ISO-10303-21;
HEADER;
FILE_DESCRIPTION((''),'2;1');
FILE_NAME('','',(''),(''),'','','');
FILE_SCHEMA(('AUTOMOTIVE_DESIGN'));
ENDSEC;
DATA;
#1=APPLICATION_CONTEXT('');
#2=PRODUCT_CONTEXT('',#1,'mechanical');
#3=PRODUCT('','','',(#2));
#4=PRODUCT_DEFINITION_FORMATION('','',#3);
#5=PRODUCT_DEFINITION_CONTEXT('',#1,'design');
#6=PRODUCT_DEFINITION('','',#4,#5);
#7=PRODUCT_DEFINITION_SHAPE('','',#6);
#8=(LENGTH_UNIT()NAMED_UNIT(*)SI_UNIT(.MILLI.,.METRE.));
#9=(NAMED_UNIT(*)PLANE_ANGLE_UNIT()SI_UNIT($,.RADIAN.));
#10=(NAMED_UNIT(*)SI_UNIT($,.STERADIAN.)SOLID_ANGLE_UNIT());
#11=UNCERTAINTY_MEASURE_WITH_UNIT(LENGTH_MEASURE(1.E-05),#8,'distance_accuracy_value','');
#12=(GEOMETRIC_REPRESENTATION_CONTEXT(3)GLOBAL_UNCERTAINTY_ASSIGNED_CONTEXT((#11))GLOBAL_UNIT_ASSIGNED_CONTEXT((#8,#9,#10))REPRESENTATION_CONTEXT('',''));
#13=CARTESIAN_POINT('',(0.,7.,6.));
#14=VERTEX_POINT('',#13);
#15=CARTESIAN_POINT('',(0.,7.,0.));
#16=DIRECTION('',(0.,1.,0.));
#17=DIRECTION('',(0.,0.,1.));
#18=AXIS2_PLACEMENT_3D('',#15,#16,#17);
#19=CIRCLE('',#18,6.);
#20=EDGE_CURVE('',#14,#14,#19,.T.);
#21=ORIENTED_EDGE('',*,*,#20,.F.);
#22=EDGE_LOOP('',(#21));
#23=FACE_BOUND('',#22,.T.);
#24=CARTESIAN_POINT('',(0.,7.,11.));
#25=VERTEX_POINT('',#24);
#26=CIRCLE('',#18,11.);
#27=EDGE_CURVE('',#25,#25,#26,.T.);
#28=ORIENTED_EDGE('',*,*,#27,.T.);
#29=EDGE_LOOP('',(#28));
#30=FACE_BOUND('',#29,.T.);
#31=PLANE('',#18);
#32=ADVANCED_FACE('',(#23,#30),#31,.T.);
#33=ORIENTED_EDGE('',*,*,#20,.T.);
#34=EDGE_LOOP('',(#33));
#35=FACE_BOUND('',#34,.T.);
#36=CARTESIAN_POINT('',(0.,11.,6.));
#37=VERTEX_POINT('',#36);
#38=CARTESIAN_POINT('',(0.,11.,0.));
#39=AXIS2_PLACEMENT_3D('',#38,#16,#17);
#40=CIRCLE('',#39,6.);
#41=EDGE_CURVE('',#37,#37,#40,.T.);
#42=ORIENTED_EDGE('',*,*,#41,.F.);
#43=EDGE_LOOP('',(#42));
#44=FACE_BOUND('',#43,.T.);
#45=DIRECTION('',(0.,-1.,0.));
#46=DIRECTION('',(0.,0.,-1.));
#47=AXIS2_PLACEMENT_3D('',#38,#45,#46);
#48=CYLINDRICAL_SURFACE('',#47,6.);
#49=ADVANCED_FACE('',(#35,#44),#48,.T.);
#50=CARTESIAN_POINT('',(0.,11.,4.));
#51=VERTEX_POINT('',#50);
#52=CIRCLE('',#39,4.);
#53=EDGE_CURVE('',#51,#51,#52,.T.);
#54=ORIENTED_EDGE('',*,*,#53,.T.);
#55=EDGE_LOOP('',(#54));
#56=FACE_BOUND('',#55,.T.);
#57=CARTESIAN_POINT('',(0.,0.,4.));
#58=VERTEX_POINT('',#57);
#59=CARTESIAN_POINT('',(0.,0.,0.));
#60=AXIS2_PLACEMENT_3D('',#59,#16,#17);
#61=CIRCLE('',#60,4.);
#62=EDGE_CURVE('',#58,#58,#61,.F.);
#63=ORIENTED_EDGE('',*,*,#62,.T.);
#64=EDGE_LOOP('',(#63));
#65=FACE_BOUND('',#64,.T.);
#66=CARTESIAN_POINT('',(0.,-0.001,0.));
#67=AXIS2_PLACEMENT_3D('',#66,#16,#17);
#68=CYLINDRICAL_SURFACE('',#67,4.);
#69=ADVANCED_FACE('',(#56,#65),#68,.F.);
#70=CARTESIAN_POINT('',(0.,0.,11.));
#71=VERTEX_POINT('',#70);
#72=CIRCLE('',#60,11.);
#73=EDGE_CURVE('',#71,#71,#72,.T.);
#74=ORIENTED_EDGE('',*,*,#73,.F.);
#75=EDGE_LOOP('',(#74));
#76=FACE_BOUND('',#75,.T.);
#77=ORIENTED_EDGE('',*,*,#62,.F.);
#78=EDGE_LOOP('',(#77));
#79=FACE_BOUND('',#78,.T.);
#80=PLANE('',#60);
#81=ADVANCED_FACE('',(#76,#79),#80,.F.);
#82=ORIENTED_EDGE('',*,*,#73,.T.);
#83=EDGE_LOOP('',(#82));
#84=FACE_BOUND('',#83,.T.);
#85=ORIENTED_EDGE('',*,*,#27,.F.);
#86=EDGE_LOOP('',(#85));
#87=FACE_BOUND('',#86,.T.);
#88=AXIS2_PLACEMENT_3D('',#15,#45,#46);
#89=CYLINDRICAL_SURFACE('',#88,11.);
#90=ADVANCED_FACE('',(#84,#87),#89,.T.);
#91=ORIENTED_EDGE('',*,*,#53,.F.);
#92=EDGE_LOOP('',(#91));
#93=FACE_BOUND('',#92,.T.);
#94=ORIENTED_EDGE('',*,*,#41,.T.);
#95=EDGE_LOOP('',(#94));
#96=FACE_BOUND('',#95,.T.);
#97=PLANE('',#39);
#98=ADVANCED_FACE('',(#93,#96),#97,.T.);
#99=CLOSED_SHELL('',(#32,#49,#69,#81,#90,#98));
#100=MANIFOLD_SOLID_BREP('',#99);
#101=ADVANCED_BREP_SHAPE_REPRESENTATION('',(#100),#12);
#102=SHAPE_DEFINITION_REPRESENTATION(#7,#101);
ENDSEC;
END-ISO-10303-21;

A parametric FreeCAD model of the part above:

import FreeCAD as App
import Part
import Sketcher

V = App.Vector
Q = App.Units.Quantity

doc = App.newDocument("Part")
params = doc.addObject("Spreadsheet::Sheet", "Params")
for row, (alias, value) in enumerate([
    ("sketch1_diameter", "22 mm"),
    ("pad1_length", "7 mm"),
    ("sketch2_diameter", "12 mm"),
    ("pad2_length", "4 mm"),
    ("sketch3_diameter", "8 mm"),
], start=1):
    params.set(f"A{row}", alias)
    params.set(f"B{row}", "=" + value)
    params.setAlias(f"B{row}", alias)

body = doc.addObject("PartDesign::Body", "Body")

sketch1 = doc.addObject("Sketcher::SketchObject", "Sketch")
body.addObject(sketch1)
sketch1.AttachmentSupport = (doc.XZ_Plane, [""])
sketch1.MapMode = "FlatFace"
sketch1.addGeometry(Part.Circle(V(0, 0, 0), V(0, 0, 1), 11), False)
sketch1.addConstraint(Sketcher.Constraint("Coincident", 0, 3, -1, 1))
sketch1.addConstraint(Sketcher.Constraint("Diameter", 0, Q("22 mm")))
sketch1.setExpression("Constraints[1]", "Params.sketch1_diameter")
pad1 = doc.addObject("PartDesign::Pad", "Pad")
body.addObject(pad1)
pad1.Profile = sketch1
pad1.setExpression("Length", "Params.pad1_length")
pad1.Reversed = True

sketch2 = doc.addObject("Sketcher::SketchObject", "Sketch001")
body.addObject(sketch2)
sketch2.AttachmentSupport = (doc.XZ_Plane, [""])
sketch2.MapMode = "FlatFace"
sketch2.AttachmentOffset = App.Placement(V(0, 0, -7), App.Rotation())
sketch2.addGeometry(Part.Circle(V(0, 0, 0), V(0, 0, 1), 6), False)
sketch2.addConstraint(Sketcher.Constraint("Coincident", 0, 3, -1, 1))
sketch2.addConstraint(Sketcher.Constraint("Diameter", 0, Q("12 mm")))
sketch2.setExpression("Constraints[1]", "Params.sketch2_diameter")
pad2 = doc.addObject("PartDesign::Pad", "Pad001")
body.addObject(pad2)
pad2.Profile = sketch2
pad2.setExpression("Length", "Params.pad2_length")
pad2.Reversed = True

sketch3 = doc.addObject("Sketcher::SketchObject", "Sketch002")
body.addObject(sketch3)
sketch3.AttachmentSupport = (doc.XZ_Plane, [""])
sketch3.MapMode = "FlatFace"
sketch3.AttachmentOffset = App.Placement(V(0, 0, -11), App.Rotation())
sketch3.addGeometry(Part.Circle(V(0, 0, 0), V(0, 0, 1), 4), False)
sketch3.addConstraint(Sketcher.Constraint("Coincident", 0, 3, -1, 1))
sketch3.addConstraint(Sketcher.Constraint("Diameter", 0, Q("8 mm")))
sketch3.setExpression("Constraints[1]", "Params.sketch3_diameter")
pocket1 = doc.addObject("PartDesign::Pocket", "Pocket")
body.addObject(pocket1)
pocket1.Profile = sketch3
pocket1.Type = "UpToFirst"
pocket1.Reversed = True

doc.recompute()
